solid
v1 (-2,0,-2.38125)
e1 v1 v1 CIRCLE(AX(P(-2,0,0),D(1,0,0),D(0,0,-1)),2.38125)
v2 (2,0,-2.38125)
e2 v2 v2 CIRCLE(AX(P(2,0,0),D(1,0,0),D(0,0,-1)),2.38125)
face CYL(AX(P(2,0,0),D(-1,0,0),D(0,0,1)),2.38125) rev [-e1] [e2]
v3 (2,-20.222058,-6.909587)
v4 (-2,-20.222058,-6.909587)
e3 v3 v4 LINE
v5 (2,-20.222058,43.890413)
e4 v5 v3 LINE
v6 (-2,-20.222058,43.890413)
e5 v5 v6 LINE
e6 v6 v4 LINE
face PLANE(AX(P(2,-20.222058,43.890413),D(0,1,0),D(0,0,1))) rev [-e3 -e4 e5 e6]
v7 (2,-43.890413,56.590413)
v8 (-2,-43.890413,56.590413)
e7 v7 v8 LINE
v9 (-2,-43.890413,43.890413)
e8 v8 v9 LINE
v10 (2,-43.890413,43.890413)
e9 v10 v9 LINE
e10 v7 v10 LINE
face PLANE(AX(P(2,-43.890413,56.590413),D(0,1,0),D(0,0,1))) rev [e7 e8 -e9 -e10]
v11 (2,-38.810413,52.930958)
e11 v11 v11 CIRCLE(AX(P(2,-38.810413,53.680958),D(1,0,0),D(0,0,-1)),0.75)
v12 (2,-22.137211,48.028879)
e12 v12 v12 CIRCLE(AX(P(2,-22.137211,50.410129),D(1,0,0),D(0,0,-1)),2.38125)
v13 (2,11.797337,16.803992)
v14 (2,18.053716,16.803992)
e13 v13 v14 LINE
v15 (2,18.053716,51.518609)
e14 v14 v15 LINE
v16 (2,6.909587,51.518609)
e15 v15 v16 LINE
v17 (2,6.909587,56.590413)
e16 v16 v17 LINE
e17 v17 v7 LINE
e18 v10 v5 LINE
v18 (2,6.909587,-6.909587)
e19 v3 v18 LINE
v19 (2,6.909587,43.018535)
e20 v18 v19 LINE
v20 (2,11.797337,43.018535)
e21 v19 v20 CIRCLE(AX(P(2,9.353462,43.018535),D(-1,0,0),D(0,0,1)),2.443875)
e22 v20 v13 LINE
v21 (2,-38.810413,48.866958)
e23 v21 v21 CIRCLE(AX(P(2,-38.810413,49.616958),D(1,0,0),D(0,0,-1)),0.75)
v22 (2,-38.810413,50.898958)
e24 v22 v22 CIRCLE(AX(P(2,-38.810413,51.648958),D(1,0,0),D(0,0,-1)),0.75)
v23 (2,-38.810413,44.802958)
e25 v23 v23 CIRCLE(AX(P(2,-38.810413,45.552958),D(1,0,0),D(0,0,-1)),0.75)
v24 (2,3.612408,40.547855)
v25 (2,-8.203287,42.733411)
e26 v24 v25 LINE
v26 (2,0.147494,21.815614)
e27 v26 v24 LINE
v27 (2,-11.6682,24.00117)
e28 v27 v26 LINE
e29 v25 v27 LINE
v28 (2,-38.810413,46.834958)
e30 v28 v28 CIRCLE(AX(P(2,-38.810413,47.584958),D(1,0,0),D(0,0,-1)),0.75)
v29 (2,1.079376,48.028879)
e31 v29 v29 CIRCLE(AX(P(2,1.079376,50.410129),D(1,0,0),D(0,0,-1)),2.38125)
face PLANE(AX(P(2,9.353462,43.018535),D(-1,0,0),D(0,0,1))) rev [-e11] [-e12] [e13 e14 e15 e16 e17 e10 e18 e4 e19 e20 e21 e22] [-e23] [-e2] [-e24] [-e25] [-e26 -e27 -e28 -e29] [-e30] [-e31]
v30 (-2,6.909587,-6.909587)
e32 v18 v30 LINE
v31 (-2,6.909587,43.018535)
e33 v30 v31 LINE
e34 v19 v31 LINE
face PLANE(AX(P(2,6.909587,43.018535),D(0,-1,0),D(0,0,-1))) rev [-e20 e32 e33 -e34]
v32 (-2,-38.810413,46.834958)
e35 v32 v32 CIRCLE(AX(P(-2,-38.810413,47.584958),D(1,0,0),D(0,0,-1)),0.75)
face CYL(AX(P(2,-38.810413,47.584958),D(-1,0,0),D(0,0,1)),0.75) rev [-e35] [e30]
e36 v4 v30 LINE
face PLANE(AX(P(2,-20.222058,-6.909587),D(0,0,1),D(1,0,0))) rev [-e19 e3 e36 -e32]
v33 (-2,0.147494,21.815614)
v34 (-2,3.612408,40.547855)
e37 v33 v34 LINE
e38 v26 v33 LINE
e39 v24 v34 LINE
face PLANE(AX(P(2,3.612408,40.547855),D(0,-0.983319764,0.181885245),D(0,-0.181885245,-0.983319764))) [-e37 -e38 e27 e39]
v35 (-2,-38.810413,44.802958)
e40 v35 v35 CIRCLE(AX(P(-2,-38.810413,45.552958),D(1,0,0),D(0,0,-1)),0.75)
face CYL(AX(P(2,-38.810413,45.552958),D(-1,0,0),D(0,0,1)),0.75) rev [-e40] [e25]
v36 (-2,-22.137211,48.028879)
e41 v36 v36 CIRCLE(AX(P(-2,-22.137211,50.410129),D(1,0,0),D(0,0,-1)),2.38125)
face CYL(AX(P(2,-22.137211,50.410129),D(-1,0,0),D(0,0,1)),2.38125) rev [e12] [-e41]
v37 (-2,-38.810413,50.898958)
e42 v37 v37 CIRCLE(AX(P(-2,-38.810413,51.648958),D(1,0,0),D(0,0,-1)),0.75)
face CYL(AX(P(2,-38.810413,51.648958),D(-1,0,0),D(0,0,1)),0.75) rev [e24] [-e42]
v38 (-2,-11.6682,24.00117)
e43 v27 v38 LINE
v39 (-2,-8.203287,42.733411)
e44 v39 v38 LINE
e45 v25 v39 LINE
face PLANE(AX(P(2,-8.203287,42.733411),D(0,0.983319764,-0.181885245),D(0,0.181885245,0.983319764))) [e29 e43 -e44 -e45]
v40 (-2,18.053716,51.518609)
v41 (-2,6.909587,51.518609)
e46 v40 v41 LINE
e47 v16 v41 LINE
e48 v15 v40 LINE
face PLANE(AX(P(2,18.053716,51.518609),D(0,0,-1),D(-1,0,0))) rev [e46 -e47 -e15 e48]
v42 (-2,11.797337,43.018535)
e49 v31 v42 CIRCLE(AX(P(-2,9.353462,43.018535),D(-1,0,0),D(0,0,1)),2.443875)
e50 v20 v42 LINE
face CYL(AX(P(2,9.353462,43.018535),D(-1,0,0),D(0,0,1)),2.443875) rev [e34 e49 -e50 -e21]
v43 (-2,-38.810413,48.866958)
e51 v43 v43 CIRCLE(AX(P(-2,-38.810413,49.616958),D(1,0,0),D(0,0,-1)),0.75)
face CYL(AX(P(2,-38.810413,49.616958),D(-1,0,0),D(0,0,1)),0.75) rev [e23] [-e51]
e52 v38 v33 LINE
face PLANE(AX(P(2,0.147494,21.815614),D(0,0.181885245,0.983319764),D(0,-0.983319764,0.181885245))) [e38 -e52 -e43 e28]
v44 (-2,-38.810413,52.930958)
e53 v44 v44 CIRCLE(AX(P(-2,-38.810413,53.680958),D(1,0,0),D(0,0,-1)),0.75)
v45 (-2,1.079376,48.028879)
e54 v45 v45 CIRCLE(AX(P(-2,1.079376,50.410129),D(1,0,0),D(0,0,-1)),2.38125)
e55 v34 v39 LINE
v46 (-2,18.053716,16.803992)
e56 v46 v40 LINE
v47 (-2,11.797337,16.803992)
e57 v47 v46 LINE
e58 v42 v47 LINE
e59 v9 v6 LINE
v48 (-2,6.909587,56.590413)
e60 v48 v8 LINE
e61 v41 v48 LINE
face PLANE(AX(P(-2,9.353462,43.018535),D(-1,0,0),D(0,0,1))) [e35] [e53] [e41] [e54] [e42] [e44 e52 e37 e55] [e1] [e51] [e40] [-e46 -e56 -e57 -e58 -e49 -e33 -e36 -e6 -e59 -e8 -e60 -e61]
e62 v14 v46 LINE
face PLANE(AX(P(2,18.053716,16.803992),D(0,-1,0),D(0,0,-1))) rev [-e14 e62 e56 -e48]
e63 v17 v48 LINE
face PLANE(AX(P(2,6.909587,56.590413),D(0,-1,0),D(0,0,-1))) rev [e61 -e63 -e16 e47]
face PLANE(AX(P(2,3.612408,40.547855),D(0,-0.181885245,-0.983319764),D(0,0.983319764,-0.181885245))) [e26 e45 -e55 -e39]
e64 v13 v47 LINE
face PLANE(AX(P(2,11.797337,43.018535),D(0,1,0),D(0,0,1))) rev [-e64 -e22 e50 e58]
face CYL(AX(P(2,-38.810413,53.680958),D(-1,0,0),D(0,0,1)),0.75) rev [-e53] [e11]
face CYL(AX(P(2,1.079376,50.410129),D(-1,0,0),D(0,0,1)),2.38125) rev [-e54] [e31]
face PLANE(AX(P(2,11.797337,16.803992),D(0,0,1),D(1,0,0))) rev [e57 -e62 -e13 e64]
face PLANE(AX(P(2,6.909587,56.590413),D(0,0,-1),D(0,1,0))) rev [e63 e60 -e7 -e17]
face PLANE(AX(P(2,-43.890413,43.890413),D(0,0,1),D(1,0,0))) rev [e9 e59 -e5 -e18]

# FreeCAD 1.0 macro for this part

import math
import FreeCAD as App
import Part
import Sketcher
Q = App.Units.Quantity


def add_polygon(sketch, points):
    """Adds a closed chain of lines whose ends are joined by coincident constraints."""
    first, n = sketch.GeometryCount, len(points)
    for a, b in zip(points, points[1:] + points[:1]):
        sketch.addGeometry(Part.LineSegment(App.Vector(*a, 0), App.Vector(*b, 0)), False)
    for i in range(n):
        sketch.addConstraint(Sketcher.Constraint("Coincident", first + i, 2, first + (i + 1) % n, 1))

doc = App.newDocument("Part")
body = doc.addObject("PartDesign::Body", "Body")

sketch1 = doc.addObject("Sketcher::SketchObject", "Sketch")
body.addObject(sketch1)
sketch1.AttachmentSupport = (doc.YZ_Plane, [""])
sketch1.MapMode = "FlatFace"
sketch1.addGeometry(Part.LineSegment(App.Vector(6.9, 51.5, 0), App.Vector(6.9, 56.6, 0)), False)
sketch1.addGeometry(Part.LineSegment(App.Vector(6.9, 56.6, 0), App.Vector(-43.9, 56.6, 0)), False)
sketch1.addGeometry(Part.LineSegment(App.Vector(-43.9, 56.6, 0), App.Vector(-43.9, 43.9, 0)), False)
sketch1.addGeometry(Part.LineSegment(App.Vector(-43.9, 43.9, 0), App.Vector(-20.2, 43.9, 0)), False)
sketch1.addGeometry(Part.LineSegment(App.Vector(-20.2, 43.9, 0), App.Vector(-20.2, -6.9, 0)), False)
sketch1.addGeometry(Part.LineSegment(App.Vector(-20.2, -6.9, 0), App.Vector(6.9, -6.9, 0)), False)
sketch1.addGeometry(Part.LineSegment(App.Vector(6.9, -6.9, 0), App.Vector(6.9, 43, 0)), False)
sketch1.addGeometry(Part.ArcOfCircle(Part.Circle(App.Vector(9.4, 43, 0), App.Vector(0, 0, 1), 2.4), math.radians(0), math.radians(180)), False)
sketch1.addGeometry(Part.LineSegment(App.Vector(11.8, 43, 0), App.Vector(11.8, 16.8, 0)), False)
sketch1.addGeometry(Part.LineSegment(App.Vector(11.8, 16.8, 0), App.Vector(18.1, 16.8, 0)), False)
sketch1.addGeometry(Part.LineSegment(App.Vector(18.1, 16.8, 0), App.Vector(18.1, 51.5, 0)), False)
sketch1.addGeometry(Part.LineSegment(App.Vector(18.1, 51.5, 0), App.Vector(6.9, 51.5, 0)), False)
sketch1.addGeometry(Part.Circle(App.Vector(-38.8, 45.6, 0), App.Vector(0, 0, 1), 0.8), False)
sketch1.addGeometry(Part.Circle(App.Vector(-38.8, 47.6, 0), App.Vector(0, 0, 1), 0.8), False)
sketch1.addGeometry(Part.Circle(App.Vector(-38.8, 49.6, 0), App.Vector(0, 0, 1), 0.8), False)
sketch1.addGeometry(Part.Circle(App.Vector(-38.8, 51.6, 0), App.Vector(0, 0, 1), 0.8), False)
sketch1.addGeometry(Part.Circle(App.Vector(-38.8, 53.7, 0), App.Vector(0, 0, 1), 0.8), False)
sketch1.addGeometry(Part.Circle(App.Vector(-22.1, 50.4, 0), App.Vector(0, 0, 1), 2.4), False)
sketch1.addGeometry(Part.Circle(App.Vector(0, 0, 0), App.Vector(0, 0, 1), 2.4), False)
add_polygon(sketch1, [(3.6, 40.5), (0.1, 21.8), (-11.7, 24), (-8.2, 42.7)])
sketch1.addGeometry(Part.Circle(App.Vector(1.1, 50.4, 0), App.Vector(0, 0, 1), 2.4), False)
sketch1.addConstraint(Sketcher.Constraint("Coincident", 0, 2, 1, 1))
sketch1.addConstraint(Sketcher.Constraint("Coincident", 1, 2, 2, 1))
sketch1.addConstraint(Sketcher.Constraint("Coincident", 2, 2, 3, 1))
sketch1.addConstraint(Sketcher.Constraint("Coincident", 3, 2, 4, 1))
sketch1.addConstraint(Sketcher.Constraint("Coincident", 4, 2, 5, 1))
sketch1.addConstraint(Sketcher.Constraint("Coincident", 5, 2, 6, 1))
sketch1.addConstraint(Sketcher.Constraint("Tangent", 6, 2, 7, 2))
sketch1.addConstraint(Sketcher.Constraint("Tangent", 7, 1, 8, 1))
sketch1.addConstraint(Sketcher.Constraint("Coincident", 8, 2, 9, 1))
sketch1.addConstraint(Sketcher.Constraint("Coincident", 9, 2, 10, 1))
sketch1.addConstraint(Sketcher.Constraint("Coincident", 10, 2, 11, 1))
sketch1.addConstraint(Sketcher.Constraint("Coincident", 11, 2, 0, 1))
sketch1.addConstraint(Sketcher.Constraint("Vertical", 0))
sketch1.addConstraint(Sketcher.Constraint("Horizontal", 1))
sketch1.addConstraint(Sketcher.Constraint("Vertical", 2))
sketch1.addConstraint(Sketcher.Constraint("Horizontal", 3))
sketch1.addConstraint(Sketcher.Constraint("Vertical", 4))
sketch1.addConstraint(Sketcher.Constraint("Horizontal", 5))
sketch1.addConstraint(Sketcher.Constraint("Vertical", 6))
sketch1.addConstraint(Sketcher.Constraint("Vertical", 8))
sketch1.addConstraint(Sketcher.Constraint("Horizontal", 9))
sketch1.addConstraint(Sketcher.Constraint("Vertical", 10))
sketch1.addConstraint(Sketcher.Constraint("Horizontal", 11))
sketch1.addConstraint(Sketcher.Constraint("Coincident", 18, 3, -1, 1))
sketch1.addConstraint(Sketcher.Constraint("Equal", 12, 13))
sketch1.addConstraint(Sketcher.Constraint("Equal", 13, 14))
sketch1.addConstraint(Sketcher.Constraint("Equal", 14, 15))
sketch1.addConstraint(Sketcher.Constraint("Equal", 15, 16))
sketch1.addConstraint(Sketcher.Constraint("Equal", 17, 18))
sketch1.addConstraint(Sketcher.Constraint("Equal", 18, 23))
sketch1.addConstraint(Sketcher.Constraint("Perpendicular", 19, 20))
sketch1.addConstraint(Sketcher.Constraint("Perpendicular", 20, 21))
sketch1.addConstraint(Sketcher.Constraint("Perpendicular", 21, 22))
sketch1.addConstraint(Sketcher.Constraint("Horizontal", 17, 3, 23, 3))
sketch1.addConstraint(Sketcher.Constraint("Vertical", 12, 3, 13, 3))
sketch1.addConstraint(Sketcher.Constraint("Vertical", 13, 3, 14, 3))
sketch1.addConstraint(Sketcher.Constraint("Vertical", 14, 3, 15, 3))
sketch1.addConstraint(Sketcher.Constraint("Vertical", 15, 3, 16, 3))
sketch1.addConstraint(Sketcher.Constraint("Vertical", 0, 2, 5, 2))
sketch1.addConstraint(Sketcher.Constraint("Equal", 1, 4))
sketch1.addConstraint(Sketcher.Constraint("DistanceX", 1, 2, 1, 1, Q("2 in")))
sketch1.addConstraint(Sketcher.Constraint("Diameter", 17, Q("0.1875 in")))
sketch1.addConstraint(Sketcher.Constraint("DistanceY", 2, 2, 2, 1, Q("0.5 in")))
sketch1.addConstraint(Sketcher.Constraint("DistanceX", 16, 3, 0, 2, Q("1.8 in")))
sketch1.addConstraint(Sketcher.Constraint("Distance", 19, Q("0.75 in")))
sketch1.addConstraint(Sketcher.Constraint("Diameter", 12, Q("1.5 mm")))
sketch1.addConstraint(Sketcher.Constraint("DistanceY", 12, 3, 13, 3, Q("0.08 in")))
sketch1.addConstraint(Sketcher.Constraint("DistanceY", 13, 3, 14, 3, Q("0.08 in")))
sketch1.addConstraint(Sketcher.Constraint("DistanceY", 14, 3, 15, 3, Q("0.08 in")))
sketch1.addConstraint(Sketcher.Constraint("DistanceY", 15, 3, 16, 3, Q("0.08 in")))
sketch1.addConstraint(Sketcher.Constraint("Radius", 7, Q("2.443875 mm")))
sketch1.addConstraint(Sketcher.Constraint("DistanceX", 9, 1, 9, 2, Q("6.256378 mm")))
sketch1.addConstraint(Sketcher.Constraint("DistanceX", 20, 2, -1, 1, Q("11.6682 mm")))
sketch1.addConstraint(Sketcher.Constraint("DistanceX", 14, 3, 17, 3, Q("16.673201 mm")))
sketch1.addConstraint(Sketcher.Constraint("DistanceY", 21, 2, 3, 2, Q("1.157002 mm")))
sketch1.addConstraint(Sketcher.Constraint("DistanceX", 3, 1, 3, 2, Q("23.668355 mm")))
sketch1.addConstraint(Sketcher.Constraint("DistanceY", 0, 1, 0, 2, Q("5.071804 mm")))
sketch1.addConstraint(Sketcher.Constraint("DistanceY", 6, 1, 6, 2, Q("49.928122 mm")))
sketch1.addConstraint(Sketcher.Constraint("DistanceY", 8, 2, 8, 1, Q("26.214543 mm")))
sketch1.addConstraint(Sketcher.Constraint("DistanceY", -1, 1, 12, 3, Q("45.552958 mm")))
sketch1.addConstraint(Sketcher.Constraint("DistanceX", 17, 3, -1, 1, Q("22.137211 mm")))
sketch1.addConstraint(Sketcher.Constraint("DistanceY", -1, 1, 17, 3, Q("50.410129 mm")))
sketch1.addConstraint(Sketcher.Constraint("DistanceY", -1, 1, 10, 2, Q("51.518609 mm")))
sketch1.addConstraint(Sketcher.Constraint("DistanceY", -1, 1, 20, 2, Q("24.00117 mm")))
sketch1.addConstraint(Sketcher.Constraint("DistanceX", -1, 1, 22, 2, Q("3.612408 mm")))
sketch1.addConstraint(Sketcher.Constraint("DistanceX", 14, 3, 23, 3, Q("39.889788 mm")))
pad1 = doc.addObject("PartDesign::Pad", "Pad")
body.addObject(pad1)
pad1.Profile = sketch1
pad1.Length = 4
pad1.Midplane = True

doc.recompute()
